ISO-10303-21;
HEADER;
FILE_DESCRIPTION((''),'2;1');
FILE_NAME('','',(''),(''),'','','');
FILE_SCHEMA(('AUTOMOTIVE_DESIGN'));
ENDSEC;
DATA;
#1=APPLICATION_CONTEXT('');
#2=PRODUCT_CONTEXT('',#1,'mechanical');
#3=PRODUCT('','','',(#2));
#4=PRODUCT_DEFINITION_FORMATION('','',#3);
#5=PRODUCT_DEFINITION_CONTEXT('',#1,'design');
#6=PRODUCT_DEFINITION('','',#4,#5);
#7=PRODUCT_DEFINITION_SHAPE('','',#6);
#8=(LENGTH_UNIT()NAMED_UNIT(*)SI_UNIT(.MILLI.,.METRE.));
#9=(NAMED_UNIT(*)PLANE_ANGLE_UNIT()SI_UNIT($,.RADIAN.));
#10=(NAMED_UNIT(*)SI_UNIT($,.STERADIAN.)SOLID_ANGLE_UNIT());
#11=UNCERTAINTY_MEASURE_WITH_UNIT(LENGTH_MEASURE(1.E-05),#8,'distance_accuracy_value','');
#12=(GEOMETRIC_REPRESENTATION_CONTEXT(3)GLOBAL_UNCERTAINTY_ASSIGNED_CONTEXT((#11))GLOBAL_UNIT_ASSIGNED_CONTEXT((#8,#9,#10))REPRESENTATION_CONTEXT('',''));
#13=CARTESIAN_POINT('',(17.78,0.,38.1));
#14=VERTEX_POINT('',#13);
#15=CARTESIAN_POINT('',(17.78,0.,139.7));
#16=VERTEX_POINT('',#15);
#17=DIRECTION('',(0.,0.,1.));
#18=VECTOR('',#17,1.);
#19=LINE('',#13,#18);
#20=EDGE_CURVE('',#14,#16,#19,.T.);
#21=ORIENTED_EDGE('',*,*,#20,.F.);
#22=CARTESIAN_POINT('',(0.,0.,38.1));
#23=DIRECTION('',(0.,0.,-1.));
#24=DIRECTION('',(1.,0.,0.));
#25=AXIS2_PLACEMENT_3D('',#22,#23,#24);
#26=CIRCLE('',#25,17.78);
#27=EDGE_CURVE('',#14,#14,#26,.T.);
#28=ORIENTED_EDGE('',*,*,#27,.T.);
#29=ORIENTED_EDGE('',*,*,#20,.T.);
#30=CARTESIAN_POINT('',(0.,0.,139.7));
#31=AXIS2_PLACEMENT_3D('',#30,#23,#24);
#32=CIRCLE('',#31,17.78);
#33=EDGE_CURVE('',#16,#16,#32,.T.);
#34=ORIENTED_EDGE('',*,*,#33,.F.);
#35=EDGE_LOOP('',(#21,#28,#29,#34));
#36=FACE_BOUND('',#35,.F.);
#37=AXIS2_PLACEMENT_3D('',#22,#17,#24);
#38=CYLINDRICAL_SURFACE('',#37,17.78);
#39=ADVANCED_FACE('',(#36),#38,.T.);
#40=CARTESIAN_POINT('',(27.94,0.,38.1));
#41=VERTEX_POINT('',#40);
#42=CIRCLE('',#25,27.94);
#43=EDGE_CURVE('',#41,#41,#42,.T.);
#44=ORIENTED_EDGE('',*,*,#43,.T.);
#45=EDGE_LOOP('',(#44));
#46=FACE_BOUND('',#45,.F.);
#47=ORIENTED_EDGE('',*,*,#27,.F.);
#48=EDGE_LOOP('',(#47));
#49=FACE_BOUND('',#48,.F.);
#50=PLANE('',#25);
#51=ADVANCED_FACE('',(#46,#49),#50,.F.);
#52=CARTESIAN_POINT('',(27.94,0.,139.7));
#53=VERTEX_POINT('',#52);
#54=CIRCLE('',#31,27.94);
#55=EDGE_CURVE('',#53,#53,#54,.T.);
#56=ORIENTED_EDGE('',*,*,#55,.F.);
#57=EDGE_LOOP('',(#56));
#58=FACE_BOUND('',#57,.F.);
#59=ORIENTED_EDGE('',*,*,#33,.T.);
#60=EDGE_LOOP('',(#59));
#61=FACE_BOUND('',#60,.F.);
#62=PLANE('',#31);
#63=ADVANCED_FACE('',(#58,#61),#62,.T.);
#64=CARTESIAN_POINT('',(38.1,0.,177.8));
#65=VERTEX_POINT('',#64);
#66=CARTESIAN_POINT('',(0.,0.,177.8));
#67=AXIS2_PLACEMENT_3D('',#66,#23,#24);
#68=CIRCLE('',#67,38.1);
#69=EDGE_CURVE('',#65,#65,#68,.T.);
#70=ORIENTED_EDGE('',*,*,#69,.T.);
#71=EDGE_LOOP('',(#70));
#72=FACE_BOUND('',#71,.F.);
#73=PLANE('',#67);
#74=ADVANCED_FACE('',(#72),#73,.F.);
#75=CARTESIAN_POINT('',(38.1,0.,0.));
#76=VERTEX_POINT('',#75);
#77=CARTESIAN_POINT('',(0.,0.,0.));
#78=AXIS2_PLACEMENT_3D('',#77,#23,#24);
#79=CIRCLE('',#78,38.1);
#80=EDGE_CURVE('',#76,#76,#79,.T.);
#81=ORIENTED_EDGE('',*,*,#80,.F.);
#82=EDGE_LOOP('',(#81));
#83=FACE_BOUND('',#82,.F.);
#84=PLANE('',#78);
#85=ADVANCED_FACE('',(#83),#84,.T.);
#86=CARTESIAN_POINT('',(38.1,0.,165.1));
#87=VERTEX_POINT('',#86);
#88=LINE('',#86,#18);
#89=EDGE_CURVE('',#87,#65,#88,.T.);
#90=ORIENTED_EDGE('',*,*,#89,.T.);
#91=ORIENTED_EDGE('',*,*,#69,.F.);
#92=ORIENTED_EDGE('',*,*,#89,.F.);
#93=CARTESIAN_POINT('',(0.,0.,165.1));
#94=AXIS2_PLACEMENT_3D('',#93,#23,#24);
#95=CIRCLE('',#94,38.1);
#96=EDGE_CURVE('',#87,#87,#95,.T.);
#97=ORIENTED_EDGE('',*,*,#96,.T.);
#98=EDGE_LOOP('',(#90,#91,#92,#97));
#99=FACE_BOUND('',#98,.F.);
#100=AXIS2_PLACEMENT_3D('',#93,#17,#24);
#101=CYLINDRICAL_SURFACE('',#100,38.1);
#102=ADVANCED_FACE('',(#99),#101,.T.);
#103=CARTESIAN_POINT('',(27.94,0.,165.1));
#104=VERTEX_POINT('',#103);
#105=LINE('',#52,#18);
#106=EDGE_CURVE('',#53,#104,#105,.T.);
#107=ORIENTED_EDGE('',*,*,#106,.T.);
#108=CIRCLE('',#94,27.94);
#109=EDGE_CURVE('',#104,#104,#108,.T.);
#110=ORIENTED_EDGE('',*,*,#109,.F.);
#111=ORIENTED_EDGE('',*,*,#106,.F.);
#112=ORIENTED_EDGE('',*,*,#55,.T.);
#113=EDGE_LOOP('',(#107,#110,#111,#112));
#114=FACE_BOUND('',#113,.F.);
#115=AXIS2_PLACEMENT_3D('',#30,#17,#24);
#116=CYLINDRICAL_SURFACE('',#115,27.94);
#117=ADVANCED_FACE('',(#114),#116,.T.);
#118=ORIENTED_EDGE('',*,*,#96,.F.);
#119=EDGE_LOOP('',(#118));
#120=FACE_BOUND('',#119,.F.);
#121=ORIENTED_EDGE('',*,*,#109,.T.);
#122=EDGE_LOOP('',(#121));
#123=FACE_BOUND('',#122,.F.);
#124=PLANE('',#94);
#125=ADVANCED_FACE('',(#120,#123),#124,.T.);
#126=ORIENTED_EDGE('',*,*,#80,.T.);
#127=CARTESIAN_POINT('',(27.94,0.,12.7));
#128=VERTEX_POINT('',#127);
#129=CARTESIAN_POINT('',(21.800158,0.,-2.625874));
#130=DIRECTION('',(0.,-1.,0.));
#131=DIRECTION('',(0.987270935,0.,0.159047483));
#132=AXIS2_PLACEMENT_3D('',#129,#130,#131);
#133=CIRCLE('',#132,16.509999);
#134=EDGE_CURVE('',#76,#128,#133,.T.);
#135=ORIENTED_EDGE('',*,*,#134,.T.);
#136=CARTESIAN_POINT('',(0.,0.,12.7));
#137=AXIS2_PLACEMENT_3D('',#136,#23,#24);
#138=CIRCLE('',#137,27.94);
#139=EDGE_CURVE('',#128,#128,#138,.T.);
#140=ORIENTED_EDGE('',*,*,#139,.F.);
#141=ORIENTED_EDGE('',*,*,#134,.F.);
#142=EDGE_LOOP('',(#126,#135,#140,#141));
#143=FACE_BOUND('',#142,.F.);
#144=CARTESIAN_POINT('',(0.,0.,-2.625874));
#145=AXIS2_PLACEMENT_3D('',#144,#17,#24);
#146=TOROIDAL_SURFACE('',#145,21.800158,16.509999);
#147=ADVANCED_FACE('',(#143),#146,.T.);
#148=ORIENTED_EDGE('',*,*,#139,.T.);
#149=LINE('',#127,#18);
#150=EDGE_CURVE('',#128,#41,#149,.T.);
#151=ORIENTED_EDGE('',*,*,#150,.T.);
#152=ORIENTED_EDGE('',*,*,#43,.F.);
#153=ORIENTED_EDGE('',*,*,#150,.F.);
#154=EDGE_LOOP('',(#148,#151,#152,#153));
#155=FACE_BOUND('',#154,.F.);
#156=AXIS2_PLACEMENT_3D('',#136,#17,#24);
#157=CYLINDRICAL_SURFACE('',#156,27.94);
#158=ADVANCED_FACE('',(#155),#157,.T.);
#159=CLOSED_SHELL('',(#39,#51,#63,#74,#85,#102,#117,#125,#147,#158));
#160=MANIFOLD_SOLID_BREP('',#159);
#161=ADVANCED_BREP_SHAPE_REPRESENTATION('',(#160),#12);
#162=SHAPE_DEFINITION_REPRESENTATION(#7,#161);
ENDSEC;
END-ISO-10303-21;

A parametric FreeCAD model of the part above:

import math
import FreeCAD as App
import Part
import Sketcher
Q = App.Units.Quantity

doc = App.newDocument("Part")
body = doc.addObject("PartDesign::Body", "Body")

# Sketch on XZ plane
sketch1 = body.newObject("Sketcher::SketchObject", "Sketch")
sketch1.AttachmentSupport = (doc.getObject("XZ_Plane"), [""])
sketch1.MapMode = "FlatFace"
sketch1.addGeometry(Part.LineSegment(App.Vector(0, 178, 0), App.Vector(0, 0, 0)), False)
sketch1.addGeometry(Part.LineSegment(App.Vector(0, 0, 0), App.Vector(38, 0, 0)), False)
sketch1.addGeometry(Part.ArcOfCircle(Part.Circle(App.Vector(22, -3, 0), App.Vector(0, 0, 1), 17), math.radians(9), math.radians(68)), False)
sketch1.addGeometry(Part.LineSegment(App.Vector(28, 13, 0), App.Vector(28, 38, 0)), False)
sketch1.addGeometry(Part.LineSegment(App.Vector(28, 38, 0), App.Vector(18, 38, 0)), False)
sketch1.addGeometry(Part.LineSegment(App.Vector(18, 38, 0), App.Vector(18, 140, 0)), False)
sketch1.addGeometry(Part.LineSegment(App.Vector(18, 140, 0), App.Vector(28, 140, 0)), False)
sketch1.addGeometry(Part.LineSegment(App.Vector(28, 140, 0), App.Vector(28, 165, 0)), False)
sketch1.addGeometry(Part.LineSegment(App.Vector(28, 165, 0), App.Vector(38, 165, 0)), False)
sketch1.addGeometry(Part.LineSegment(App.Vector(38, 165, 0), App.Vector(38, 178, 0)), False)
sketch1.addGeometry(Part.LineSegment(App.Vector(38, 178, 0), App.Vector(0, 178, 0)), False)
sketch1.addConstraint(Sketcher.Constraint("Coincident", 0, 2, 1, 1))
sketch1.addConstraint(Sketcher.Constraint("Coincident", 1, 2, 2, 1))
sketch1.addConstraint(Sketcher.Constraint("Coincident", 2, 2, 3, 1))
sketch1.addConstraint(Sketcher.Constraint("Coincident", 3, 2, 4, 1))
sketch1.addConstraint(Sketcher.Constraint("Coincident", 4, 2, 5, 1))
sketch1.addConstraint(Sketcher.Constraint("Coincident", 5, 2, 6, 1))
sketch1.addConstraint(Sketcher.Constraint("Coincident", 6, 2, 7, 1))
sketch1.addConstraint(Sketcher.Constraint("Coincident", 7, 2, 8, 1))
sketch1.addConstraint(Sketcher.Constraint("Coincident", 8, 2, 9, 1))
sketch1.addConstraint(Sketcher.Constraint("Coincident", 9, 2, 10, 1))
sketch1.addConstraint(Sketcher.Constraint("Coincident", 10, 2, 0, 1))
sketch1.addConstraint(Sketcher.Constraint("Vertical", 0))
sketch1.addConstraint(Sketcher.Constraint("Horizontal", 1))
sketch1.addConstraint(Sketcher.Constraint("Vertical", 3))
sketch1.addConstraint(Sketcher.Constraint("Horizontal", 4))
sketch1.addConstraint(Sketcher.Constraint("Vertical", 5))
sketch1.addConstraint(Sketcher.Constraint("Horizontal", 6))
sketch1.addConstraint(Sketcher.Constraint("Vertical", 7))
sketch1.addConstraint(Sketcher.Constraint("Horizontal", 8))
sketch1.addConstraint(Sketcher.Constraint("Vertical", 9))
sketch1.addConstraint(Sketcher.Constraint("Horizontal", 10))
sketch1.addConstraint(Sketcher.Constraint("Coincident", 0, 2, -1, 1))
sketch1.addConstraint(Sketcher.Constraint("Vertical", 3, 2, 6, 2))
sketch1.addConstraint(Sketcher.Constraint("Vertical", 1, 2, 8, 2))
sketch1.addConstraint(Sketcher.Constraint("Equal", 6, 8))
sketch1.addConstraint(Sketcher.Constraint("Equal", 3, 7))
sketch1.addConstraint(Sketcher.Constraint("DistanceY", 0, 2, 0, 1, Q("7 in")))
sketch1.addConstraint(Sketcher.Constraint("DistanceY", 3, 1, 3, 2, Q("1 in")))
sketch1.addConstraint(Sketcher.Constraint("DistanceY", 5, 1, 5, 2, Q("4 in")))
sketch1.addConstraint(Sketcher.Constraint("Radius", 2, Q("0.65 in")))
sketch1.addConstraint(Sketcher.Constraint("DistanceX", 1, 1, 1, 2, Q("1.5 in")))
sketch1.addConstraint(Sketcher.Constraint("DistanceX", 4, 2, 4, 1, Q("0.4 in")))
sketch1.addConstraint(Sketcher.Constraint("DistanceY", 9, 1, 9, 2, Q("0.5 in")))
revolution = body.newObject("PartDesign::Revolution", "Revolution")
revolution.Profile = sketch1
revolution.ReferenceAxis = (sketch1, ["V_Axis"])
revolution.Angle = 360

doc.recompute()
